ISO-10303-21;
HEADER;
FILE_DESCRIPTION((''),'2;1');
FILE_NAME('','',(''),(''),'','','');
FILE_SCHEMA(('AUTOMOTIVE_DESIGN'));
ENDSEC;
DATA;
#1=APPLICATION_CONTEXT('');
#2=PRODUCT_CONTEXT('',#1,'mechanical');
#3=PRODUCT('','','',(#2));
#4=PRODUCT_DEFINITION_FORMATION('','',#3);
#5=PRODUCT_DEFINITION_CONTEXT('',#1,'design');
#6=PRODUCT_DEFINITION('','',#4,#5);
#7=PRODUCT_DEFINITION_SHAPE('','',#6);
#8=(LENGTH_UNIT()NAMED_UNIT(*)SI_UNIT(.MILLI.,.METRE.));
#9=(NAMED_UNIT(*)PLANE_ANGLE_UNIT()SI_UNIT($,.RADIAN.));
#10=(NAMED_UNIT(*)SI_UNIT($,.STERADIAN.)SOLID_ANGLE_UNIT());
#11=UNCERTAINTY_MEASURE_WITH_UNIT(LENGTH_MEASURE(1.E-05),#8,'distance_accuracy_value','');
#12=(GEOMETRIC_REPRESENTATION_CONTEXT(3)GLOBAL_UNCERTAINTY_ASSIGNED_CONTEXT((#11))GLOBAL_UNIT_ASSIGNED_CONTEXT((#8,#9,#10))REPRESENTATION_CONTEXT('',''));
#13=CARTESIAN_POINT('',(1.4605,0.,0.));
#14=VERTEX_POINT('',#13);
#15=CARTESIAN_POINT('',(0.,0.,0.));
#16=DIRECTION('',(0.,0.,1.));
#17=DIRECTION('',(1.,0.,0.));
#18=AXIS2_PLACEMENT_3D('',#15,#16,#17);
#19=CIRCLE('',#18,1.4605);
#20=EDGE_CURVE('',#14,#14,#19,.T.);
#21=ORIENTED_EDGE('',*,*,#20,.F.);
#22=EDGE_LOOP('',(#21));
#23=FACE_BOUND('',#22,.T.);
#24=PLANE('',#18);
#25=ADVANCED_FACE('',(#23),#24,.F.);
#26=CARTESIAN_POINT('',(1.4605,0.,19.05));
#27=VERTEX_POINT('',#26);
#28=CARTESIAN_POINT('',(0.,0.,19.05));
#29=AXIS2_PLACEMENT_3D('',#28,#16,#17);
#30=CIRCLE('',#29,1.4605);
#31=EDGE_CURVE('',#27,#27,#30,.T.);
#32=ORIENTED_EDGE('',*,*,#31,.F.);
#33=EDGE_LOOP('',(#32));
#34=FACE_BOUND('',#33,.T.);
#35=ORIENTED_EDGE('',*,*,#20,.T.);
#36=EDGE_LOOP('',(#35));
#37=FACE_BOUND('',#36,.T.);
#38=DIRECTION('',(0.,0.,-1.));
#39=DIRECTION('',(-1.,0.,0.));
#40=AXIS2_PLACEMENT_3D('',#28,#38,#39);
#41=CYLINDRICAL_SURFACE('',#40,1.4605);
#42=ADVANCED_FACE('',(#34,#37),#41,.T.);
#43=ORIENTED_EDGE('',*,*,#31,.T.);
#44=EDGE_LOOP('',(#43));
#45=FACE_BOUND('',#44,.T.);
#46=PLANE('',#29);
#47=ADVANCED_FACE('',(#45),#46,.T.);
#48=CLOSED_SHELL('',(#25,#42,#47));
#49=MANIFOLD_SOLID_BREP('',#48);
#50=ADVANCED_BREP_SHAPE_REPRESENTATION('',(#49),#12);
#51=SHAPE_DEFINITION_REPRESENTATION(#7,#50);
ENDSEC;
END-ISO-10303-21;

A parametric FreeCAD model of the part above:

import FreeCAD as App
import Part
import Sketcher

V = App.Vector
Q = App.Units.Quantity

doc = App.newDocument("Part")
params = doc.addObject("Spreadsheet::Sheet", "Params")
for row, (alias, value) in enumerate([
    ("sketch1_diameter", "0.115 in"),
    ("pad1_length", "0.75 in"),
], start=1):
    params.set(f"A{row}", alias)
    params.set(f"B{row}", "=" + value)
    params.setAlias(f"B{row}", alias)

body = doc.addObject("PartDesign::Body", "Body")

sketch1 = doc.addObject("Sketcher::SketchObject", "Sketch")
body.addObject(sketch1)
sketch1.AttachmentSupport = (doc.XY_Plane, [""])
sketch1.MapMode = "FlatFace"
sketch1.addGeometry(Part.Circle(V(0, 0, 0), V(0, 0, 1), 1.4605), False)
sketch1.addConstraint([
    Sketcher.Constraint("Coincident", 0, 3, -1, 1),
    Sketcher.Constraint("Diameter", 0, Q("0.115 in")),
])
sketch1.setExpression("Constraints[1]", "Params.sketch1_diameter")
pad1 = doc.addObject("PartDesign::Pad", "Pad")
body.addObject(pad1)
pad1.Profile = sketch1
pad1.setExpression("Length", "Params.pad1_length")

doc.recompute()
